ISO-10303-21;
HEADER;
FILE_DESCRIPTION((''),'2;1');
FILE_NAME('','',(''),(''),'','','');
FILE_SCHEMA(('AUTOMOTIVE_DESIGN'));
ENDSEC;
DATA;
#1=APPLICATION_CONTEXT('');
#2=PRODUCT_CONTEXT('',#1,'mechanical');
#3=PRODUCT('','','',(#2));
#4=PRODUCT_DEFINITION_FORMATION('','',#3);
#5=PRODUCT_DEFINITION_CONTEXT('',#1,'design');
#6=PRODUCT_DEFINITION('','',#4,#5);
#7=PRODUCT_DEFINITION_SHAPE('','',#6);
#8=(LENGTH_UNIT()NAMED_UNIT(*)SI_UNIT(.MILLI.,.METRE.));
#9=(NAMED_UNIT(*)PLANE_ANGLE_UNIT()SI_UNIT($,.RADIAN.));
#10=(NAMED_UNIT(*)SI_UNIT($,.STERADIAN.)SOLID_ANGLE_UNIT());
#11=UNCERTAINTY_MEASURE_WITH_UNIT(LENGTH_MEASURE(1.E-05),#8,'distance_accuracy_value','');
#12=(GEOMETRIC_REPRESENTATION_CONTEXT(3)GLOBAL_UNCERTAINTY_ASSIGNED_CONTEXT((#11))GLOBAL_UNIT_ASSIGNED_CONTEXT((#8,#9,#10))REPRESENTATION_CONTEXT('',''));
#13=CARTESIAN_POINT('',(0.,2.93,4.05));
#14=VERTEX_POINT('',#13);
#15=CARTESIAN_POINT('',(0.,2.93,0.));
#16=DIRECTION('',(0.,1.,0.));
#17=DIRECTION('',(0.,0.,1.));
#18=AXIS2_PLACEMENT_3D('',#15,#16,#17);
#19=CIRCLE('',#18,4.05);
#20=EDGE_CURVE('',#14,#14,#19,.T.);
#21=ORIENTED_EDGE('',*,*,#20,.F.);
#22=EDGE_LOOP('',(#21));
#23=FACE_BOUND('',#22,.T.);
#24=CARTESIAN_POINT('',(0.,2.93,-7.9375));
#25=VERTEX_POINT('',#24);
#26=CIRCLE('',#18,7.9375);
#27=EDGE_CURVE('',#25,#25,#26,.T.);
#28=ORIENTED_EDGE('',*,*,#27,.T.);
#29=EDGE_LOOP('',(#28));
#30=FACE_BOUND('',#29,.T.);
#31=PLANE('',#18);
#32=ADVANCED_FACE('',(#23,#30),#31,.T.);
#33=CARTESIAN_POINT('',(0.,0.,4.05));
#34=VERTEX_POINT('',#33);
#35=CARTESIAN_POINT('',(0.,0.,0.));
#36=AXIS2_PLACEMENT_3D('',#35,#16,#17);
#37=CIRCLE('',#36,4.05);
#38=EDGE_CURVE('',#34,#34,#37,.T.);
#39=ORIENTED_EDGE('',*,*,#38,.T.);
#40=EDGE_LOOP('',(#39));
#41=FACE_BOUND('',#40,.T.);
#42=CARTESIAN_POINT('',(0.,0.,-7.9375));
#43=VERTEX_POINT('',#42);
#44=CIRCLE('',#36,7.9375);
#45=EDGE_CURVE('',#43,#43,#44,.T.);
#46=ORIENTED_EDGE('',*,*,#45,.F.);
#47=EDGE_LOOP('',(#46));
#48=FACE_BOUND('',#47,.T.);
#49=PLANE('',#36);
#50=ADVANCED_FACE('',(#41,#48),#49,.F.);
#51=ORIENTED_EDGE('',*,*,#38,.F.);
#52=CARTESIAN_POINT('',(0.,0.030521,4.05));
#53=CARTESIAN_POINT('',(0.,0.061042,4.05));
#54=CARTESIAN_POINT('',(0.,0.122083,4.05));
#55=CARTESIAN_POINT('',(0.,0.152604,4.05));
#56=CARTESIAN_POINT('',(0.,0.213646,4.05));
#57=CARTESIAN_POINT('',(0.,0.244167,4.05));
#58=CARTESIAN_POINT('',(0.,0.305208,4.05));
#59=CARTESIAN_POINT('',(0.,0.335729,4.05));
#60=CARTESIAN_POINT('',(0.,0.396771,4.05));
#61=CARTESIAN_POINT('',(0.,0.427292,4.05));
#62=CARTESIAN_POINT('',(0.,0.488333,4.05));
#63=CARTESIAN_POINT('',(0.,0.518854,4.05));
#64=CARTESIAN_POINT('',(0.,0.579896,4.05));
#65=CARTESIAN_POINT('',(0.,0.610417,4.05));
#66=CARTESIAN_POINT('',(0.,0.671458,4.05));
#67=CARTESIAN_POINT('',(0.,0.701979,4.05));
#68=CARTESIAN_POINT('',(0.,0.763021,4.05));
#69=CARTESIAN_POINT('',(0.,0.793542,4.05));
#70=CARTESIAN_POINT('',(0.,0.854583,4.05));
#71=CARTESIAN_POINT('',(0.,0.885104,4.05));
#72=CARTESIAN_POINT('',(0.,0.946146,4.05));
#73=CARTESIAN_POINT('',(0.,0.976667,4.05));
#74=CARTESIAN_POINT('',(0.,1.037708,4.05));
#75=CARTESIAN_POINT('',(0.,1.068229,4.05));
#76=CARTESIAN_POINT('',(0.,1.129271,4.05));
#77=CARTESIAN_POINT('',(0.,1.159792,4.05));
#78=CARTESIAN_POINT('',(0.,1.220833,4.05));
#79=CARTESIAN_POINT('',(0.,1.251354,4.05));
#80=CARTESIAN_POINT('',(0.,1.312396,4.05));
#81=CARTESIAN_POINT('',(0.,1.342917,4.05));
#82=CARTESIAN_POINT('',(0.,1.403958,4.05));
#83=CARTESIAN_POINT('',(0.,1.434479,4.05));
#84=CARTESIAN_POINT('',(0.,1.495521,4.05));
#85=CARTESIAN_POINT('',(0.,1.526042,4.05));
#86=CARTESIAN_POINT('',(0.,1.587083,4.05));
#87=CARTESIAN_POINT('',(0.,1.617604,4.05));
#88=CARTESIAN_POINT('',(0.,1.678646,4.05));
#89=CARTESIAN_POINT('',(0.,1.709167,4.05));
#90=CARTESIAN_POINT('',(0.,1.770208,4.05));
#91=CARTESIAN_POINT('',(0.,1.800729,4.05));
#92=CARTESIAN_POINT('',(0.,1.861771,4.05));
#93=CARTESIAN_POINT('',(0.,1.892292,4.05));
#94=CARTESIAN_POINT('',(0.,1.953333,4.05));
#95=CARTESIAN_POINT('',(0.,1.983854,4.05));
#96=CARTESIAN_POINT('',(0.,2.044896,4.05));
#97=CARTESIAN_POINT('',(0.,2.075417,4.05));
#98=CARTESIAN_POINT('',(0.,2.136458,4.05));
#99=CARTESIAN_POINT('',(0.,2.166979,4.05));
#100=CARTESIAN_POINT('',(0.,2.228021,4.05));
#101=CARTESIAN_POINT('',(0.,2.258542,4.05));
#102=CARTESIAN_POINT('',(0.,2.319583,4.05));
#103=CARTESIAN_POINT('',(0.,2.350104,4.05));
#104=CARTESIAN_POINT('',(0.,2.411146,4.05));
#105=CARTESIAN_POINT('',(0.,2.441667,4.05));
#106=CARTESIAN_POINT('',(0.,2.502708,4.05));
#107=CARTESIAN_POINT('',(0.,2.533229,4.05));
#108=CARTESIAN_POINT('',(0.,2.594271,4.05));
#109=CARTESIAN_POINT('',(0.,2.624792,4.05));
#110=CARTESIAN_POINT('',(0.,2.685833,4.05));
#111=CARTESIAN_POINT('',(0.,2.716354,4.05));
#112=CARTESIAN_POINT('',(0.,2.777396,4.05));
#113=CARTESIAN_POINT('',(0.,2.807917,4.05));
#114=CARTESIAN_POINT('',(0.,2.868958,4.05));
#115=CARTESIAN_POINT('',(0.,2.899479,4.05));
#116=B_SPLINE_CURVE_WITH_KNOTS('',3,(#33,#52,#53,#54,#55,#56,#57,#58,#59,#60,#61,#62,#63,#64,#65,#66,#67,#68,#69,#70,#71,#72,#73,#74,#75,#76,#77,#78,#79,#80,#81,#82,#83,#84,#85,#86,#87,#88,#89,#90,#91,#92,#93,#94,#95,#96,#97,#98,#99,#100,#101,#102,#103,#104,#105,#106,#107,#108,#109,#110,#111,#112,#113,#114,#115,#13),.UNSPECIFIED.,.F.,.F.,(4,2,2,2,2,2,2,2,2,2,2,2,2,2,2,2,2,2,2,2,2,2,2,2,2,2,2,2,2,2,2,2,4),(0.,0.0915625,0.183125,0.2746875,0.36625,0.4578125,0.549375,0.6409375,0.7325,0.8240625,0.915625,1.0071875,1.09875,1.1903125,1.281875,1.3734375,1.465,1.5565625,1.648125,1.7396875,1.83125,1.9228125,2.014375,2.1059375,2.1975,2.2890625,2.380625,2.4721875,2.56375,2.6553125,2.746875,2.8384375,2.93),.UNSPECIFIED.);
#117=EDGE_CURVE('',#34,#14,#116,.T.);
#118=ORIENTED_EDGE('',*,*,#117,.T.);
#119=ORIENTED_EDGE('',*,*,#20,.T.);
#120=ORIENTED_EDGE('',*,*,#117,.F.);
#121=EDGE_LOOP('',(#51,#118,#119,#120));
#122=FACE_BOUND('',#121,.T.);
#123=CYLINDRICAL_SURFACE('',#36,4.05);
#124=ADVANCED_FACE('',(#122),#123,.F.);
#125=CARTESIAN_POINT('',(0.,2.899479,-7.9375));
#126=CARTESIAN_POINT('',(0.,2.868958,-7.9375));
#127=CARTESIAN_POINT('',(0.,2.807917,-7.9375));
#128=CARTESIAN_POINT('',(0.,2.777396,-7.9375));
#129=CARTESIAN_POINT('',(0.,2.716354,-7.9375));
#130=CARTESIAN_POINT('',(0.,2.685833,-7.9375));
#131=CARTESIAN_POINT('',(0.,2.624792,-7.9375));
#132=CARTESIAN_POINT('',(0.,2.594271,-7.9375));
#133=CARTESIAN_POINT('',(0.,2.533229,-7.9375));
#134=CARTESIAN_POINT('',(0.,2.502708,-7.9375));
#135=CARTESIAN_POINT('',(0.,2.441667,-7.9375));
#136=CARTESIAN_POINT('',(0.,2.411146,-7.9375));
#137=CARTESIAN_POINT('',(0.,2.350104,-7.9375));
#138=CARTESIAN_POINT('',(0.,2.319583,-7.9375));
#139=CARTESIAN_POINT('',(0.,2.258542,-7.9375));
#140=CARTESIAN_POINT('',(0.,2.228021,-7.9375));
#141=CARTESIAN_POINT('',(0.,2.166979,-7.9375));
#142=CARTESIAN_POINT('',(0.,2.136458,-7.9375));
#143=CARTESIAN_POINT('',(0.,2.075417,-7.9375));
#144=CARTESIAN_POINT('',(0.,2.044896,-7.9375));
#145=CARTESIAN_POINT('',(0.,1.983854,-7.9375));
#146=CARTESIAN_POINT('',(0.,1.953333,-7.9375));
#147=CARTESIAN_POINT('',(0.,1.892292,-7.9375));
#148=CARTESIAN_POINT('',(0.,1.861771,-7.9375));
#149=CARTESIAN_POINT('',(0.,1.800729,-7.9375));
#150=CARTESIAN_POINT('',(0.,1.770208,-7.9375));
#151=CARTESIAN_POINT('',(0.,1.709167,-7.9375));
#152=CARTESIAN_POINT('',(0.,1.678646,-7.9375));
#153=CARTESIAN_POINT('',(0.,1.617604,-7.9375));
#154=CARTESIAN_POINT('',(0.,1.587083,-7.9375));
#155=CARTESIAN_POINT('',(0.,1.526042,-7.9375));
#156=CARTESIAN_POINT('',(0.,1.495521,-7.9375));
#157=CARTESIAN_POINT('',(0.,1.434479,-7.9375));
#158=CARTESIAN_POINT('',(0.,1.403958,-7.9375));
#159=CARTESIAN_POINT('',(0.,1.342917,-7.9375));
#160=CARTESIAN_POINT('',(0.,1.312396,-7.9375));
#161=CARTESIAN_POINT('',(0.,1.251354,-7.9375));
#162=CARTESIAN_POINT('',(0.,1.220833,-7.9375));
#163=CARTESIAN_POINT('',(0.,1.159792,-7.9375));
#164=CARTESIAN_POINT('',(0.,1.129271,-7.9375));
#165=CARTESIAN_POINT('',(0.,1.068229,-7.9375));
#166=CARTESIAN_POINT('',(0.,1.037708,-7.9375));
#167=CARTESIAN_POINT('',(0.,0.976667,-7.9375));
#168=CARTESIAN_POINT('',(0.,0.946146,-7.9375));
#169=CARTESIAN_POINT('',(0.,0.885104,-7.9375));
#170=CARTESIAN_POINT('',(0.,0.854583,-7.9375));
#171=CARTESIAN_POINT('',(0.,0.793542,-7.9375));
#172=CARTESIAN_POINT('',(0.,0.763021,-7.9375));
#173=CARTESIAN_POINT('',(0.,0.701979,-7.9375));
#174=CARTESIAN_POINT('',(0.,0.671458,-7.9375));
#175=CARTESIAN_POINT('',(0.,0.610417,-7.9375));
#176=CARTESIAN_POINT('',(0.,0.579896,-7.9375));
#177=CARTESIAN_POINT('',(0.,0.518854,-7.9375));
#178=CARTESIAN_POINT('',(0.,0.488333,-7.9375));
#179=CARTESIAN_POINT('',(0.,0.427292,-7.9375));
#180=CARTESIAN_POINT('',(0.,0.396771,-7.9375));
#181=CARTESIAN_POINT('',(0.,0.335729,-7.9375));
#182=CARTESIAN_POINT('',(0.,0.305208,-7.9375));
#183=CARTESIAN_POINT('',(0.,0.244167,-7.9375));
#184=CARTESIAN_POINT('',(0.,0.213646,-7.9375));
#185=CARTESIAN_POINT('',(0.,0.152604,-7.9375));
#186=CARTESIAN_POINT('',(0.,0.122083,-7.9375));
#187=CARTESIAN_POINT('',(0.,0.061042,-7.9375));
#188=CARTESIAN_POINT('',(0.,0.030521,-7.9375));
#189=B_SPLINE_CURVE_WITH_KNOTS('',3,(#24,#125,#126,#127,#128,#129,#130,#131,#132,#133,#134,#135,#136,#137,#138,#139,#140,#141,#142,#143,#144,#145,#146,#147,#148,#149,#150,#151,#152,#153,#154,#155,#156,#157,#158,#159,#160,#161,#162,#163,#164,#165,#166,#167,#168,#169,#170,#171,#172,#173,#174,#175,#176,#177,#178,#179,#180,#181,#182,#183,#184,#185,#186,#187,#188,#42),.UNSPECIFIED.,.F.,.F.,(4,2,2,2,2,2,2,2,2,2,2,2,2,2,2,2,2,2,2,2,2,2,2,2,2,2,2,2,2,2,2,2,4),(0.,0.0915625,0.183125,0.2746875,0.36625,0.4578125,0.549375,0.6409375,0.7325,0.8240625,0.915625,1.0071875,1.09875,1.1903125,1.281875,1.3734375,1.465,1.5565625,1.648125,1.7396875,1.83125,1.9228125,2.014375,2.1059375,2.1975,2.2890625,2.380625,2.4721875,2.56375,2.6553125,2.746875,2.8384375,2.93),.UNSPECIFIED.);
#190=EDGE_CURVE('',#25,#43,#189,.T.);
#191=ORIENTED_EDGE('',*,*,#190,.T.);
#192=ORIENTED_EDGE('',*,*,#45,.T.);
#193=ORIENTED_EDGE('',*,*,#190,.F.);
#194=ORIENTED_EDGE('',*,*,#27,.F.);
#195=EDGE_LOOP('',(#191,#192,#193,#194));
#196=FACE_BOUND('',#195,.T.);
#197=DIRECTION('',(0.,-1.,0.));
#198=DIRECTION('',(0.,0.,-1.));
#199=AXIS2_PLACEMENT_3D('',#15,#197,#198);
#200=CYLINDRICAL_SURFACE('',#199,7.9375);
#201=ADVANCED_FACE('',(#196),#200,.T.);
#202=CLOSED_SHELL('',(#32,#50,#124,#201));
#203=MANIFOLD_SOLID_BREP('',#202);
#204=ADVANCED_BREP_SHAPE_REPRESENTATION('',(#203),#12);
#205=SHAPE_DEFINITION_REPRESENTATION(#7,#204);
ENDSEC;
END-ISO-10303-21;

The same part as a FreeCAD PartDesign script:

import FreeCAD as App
import Part
import Sketcher
Q = App.Units.Quantity

doc = App.newDocument("Part")
body = doc.addObject("PartDesign::Body", "Body")

sketch1 = body.newObject("Sketcher::SketchObject", "Sketch")
sketch1.AttachmentSupport = (doc.getObject("XZ_Plane"), [""])
sketch1.MapMode = "FlatFace"
sketch1.addGeometry(Part.Circle(App.Vector(0, 0, 0), App.Vector(0, 0, 1), 8), False)
sketch1.addConstraint([
    Sketcher.Constraint("Coincident", 0, 3, -1, 1),
    Sketcher.Constraint("Diameter", 0, Q("15.875 mm")),
])
pad1 = body.newObject("PartDesign::Pad", "Pad")
pad1.Profile = sketch1
pad1.Length = 2.93
pad1.Reversed = True

sketch2 = body.newObject("Sketcher::SketchObject", "Sketch001")
sketch2.AttachmentSupport = (doc.getObject("XZ_Plane"), [""])
sketch2.MapMode = "FlatFace"
sketch2.AttachmentOffset = App.Placement(App.Vector(0, 0, -2.93), App.Rotation())
sketch2.addGeometry(Part.Circle(App.Vector(0, 0, 0), App.Vector(0, 0, 1), 4), False)
sketch2.addConstraint([
    Sketcher.Constraint("Coincident", 0, 3, -1, 1),
    Sketcher.Constraint("Diameter", 0, Q("8.1 mm")),
])
pocket1 = body.newObject("PartDesign::Pocket", "Pocket")
pocket1.Profile = sketch2
pocket1.Type = "ThroughAll"
pocket1.Reversed = True

doc.recompute()
